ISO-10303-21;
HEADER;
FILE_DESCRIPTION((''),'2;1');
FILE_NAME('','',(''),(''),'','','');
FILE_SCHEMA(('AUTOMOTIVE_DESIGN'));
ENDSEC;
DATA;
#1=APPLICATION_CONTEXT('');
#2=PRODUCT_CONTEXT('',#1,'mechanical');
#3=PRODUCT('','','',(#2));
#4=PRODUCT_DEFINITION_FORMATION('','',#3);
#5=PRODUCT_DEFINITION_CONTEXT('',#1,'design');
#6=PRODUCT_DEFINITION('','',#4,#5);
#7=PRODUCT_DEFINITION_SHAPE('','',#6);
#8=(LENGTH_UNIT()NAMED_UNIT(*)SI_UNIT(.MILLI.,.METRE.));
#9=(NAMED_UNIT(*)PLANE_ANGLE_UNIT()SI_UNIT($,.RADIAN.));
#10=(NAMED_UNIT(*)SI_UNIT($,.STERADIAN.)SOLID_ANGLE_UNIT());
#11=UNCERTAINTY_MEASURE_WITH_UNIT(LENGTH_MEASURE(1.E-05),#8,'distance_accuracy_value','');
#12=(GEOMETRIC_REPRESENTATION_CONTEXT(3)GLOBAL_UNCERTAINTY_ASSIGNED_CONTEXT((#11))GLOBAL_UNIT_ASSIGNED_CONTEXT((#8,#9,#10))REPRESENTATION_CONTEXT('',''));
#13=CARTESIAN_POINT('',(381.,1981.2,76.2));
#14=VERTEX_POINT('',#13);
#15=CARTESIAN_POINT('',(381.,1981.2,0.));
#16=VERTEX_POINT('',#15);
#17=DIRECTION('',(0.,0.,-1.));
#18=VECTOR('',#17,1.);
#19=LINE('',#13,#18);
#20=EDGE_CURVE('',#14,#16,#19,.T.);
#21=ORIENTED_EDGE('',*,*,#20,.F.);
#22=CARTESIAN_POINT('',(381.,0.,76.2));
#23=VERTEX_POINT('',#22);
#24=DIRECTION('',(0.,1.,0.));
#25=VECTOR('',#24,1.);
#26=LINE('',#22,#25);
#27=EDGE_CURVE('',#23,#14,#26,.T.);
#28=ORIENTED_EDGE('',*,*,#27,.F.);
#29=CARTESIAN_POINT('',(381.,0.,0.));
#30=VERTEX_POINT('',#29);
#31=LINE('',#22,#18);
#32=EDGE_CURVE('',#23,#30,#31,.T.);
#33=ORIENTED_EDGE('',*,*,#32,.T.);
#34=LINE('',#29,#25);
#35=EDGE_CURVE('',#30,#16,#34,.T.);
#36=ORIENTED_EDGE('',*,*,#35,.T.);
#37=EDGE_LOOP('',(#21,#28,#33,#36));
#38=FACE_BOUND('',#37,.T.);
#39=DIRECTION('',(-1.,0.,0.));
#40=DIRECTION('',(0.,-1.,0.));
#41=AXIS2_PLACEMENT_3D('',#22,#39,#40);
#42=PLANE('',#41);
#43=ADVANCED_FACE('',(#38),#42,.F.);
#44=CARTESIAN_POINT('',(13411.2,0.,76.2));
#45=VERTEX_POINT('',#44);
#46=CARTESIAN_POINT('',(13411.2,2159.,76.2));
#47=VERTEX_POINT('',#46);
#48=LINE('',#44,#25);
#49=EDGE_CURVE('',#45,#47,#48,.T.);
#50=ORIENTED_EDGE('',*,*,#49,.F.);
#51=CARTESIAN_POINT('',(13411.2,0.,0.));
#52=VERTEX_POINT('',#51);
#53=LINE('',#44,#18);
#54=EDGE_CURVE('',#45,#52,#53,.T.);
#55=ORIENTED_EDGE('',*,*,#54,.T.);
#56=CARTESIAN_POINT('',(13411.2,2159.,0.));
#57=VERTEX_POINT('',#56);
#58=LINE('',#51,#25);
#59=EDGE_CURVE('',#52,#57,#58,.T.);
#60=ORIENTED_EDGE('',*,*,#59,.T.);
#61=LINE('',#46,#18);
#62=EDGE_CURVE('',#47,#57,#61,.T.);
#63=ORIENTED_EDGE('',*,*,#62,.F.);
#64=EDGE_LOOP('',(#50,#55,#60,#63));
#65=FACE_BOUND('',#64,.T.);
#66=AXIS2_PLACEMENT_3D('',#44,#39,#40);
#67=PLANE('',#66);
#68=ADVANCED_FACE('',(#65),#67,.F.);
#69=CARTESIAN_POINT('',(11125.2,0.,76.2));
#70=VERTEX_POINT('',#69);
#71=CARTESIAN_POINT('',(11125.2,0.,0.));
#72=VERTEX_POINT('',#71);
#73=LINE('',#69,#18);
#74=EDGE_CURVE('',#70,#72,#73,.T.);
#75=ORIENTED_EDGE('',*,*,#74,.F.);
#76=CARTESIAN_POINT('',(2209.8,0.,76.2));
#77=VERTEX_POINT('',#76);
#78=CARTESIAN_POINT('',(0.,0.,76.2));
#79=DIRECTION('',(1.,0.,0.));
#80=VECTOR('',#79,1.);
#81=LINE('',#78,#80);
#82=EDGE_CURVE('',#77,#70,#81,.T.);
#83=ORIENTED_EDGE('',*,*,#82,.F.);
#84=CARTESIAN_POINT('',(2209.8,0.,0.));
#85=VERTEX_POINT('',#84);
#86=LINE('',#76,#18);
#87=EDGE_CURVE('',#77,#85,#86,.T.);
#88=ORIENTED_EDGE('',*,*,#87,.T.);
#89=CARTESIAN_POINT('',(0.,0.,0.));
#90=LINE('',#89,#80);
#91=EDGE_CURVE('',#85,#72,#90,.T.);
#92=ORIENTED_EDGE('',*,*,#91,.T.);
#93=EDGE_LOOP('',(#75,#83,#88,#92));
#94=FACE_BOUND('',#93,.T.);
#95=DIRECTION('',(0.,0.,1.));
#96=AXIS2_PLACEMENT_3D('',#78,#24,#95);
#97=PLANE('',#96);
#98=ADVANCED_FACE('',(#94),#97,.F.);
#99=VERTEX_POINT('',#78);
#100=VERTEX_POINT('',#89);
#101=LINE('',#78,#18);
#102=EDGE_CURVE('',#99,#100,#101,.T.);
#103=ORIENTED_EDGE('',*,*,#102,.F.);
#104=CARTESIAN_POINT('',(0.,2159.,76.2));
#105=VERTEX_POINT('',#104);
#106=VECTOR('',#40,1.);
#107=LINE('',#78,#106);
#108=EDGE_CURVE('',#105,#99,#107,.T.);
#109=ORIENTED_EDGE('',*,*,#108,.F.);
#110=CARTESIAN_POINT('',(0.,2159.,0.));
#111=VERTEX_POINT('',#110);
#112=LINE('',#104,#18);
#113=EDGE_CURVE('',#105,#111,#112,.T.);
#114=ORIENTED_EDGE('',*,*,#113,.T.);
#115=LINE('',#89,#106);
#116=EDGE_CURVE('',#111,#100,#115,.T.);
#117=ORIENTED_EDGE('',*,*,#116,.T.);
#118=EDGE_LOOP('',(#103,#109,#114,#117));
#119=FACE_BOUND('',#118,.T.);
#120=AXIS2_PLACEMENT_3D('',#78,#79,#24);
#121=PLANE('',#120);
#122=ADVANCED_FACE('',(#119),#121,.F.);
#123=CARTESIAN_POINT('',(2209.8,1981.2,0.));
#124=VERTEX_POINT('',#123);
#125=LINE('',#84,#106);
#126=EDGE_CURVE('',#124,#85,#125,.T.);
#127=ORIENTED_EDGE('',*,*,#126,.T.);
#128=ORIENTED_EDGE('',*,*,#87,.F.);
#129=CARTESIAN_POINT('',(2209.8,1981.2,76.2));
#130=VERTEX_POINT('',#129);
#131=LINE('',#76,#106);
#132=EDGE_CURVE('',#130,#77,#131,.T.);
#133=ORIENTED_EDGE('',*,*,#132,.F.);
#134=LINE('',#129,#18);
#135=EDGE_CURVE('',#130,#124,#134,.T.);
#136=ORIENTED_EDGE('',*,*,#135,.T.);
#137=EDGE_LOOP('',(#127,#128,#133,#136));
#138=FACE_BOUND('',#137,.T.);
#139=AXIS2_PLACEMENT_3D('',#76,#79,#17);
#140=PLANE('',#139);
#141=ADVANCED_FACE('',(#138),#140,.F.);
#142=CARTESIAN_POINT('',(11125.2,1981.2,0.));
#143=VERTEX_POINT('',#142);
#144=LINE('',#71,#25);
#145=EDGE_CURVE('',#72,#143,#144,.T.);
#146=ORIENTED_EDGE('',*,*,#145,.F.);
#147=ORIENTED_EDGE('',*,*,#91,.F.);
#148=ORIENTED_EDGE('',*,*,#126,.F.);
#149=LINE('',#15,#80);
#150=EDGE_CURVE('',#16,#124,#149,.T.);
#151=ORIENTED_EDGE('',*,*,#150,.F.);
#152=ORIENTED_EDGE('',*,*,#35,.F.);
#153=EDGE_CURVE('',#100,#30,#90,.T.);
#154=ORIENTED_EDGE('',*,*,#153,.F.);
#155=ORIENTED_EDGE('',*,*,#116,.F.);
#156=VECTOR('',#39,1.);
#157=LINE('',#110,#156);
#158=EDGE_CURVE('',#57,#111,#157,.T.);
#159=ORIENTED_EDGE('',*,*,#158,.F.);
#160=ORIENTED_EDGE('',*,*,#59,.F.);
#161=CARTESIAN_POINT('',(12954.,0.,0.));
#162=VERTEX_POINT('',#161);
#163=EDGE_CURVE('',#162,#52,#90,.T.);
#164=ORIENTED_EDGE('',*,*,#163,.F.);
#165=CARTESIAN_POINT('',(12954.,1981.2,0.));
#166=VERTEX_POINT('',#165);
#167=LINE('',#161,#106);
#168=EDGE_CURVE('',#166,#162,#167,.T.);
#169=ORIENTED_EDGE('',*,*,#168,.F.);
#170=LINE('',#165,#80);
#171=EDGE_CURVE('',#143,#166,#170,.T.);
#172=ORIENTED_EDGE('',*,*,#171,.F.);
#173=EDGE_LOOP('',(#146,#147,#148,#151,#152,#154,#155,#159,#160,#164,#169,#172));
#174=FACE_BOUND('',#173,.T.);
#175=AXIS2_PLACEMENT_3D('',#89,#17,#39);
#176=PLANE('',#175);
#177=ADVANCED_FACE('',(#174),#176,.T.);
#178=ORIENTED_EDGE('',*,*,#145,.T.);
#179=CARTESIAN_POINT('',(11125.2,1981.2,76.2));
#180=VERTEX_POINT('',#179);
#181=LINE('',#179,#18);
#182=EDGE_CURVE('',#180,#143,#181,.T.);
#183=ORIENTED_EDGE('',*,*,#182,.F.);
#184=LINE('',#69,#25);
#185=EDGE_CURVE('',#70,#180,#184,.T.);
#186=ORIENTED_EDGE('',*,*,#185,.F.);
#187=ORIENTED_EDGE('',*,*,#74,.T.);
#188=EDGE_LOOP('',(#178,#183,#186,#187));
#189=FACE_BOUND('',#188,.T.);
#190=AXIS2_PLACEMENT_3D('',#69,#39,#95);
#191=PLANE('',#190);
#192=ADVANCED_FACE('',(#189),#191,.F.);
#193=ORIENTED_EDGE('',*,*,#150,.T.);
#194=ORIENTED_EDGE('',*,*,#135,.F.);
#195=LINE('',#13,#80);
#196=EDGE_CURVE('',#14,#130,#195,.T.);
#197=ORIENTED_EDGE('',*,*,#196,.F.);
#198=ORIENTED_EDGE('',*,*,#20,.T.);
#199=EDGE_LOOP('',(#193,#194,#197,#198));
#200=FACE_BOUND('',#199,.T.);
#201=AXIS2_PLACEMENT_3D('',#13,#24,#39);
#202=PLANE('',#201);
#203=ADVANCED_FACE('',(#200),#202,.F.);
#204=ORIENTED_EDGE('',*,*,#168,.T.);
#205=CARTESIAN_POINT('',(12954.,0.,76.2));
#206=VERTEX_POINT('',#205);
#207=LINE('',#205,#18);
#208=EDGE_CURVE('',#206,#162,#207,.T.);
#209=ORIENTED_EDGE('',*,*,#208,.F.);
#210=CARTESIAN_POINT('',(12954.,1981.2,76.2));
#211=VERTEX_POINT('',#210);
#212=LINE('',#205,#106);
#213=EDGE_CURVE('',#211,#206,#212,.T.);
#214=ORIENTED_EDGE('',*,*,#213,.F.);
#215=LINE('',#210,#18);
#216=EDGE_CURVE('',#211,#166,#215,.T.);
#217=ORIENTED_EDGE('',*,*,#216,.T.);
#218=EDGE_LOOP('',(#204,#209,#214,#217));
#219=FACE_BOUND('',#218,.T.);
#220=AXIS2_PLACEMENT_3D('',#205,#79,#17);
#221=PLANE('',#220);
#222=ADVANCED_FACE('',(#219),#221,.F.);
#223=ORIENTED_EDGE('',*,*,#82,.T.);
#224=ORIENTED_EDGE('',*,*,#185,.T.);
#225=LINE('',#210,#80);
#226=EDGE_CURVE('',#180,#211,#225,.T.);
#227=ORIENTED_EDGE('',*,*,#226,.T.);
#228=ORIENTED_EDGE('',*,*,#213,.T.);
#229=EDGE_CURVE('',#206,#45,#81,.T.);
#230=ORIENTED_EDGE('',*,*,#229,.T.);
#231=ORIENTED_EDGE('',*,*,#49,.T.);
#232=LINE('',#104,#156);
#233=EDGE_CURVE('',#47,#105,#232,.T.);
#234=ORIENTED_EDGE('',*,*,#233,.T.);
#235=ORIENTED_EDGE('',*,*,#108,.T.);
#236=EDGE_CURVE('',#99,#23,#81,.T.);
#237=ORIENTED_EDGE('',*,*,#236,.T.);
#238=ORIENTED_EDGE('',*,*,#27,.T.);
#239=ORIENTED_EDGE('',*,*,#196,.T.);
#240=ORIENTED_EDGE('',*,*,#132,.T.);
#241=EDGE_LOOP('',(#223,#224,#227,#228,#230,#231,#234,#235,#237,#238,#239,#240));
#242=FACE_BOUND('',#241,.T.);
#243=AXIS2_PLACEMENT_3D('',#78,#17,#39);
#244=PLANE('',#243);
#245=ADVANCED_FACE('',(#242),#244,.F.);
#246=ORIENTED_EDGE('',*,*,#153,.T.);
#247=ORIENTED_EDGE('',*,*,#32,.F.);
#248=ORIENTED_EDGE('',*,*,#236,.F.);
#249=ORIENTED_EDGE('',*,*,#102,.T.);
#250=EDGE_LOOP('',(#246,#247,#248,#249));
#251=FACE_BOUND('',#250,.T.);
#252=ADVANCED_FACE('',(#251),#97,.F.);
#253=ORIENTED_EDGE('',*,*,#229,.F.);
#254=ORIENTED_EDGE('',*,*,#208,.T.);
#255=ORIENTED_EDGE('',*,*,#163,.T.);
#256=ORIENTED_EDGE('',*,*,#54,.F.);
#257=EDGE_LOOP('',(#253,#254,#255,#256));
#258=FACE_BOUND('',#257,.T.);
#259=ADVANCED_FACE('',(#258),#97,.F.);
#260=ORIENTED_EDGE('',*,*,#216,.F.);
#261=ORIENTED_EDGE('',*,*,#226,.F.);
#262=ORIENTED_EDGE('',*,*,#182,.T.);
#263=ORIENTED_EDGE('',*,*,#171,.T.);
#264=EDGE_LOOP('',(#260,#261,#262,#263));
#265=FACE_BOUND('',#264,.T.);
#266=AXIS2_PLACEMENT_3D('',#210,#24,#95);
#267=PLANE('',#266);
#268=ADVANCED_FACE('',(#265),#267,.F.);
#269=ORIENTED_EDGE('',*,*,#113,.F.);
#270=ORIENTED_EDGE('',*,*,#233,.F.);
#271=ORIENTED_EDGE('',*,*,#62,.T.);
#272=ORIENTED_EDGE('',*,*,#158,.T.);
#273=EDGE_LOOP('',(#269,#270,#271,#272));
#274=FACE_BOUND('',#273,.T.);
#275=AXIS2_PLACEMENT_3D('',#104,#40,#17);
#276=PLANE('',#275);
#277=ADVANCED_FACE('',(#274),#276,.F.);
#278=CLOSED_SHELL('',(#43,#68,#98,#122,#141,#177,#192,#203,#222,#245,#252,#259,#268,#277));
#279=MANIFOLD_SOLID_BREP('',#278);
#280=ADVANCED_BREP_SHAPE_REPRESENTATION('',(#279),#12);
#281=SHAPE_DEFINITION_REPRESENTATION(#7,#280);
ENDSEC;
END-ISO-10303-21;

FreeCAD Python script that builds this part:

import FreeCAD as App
import Part
import Sketcher
from FreeCAD import Vector
Q = App.Units.Quantity


def add_polygon(sketch, points):
    """Adds a closed chain of lines whose ends are joined by coincident constraints."""
    first, n = sketch.GeometryCount, len(points)
    for a, b in zip(points, points[1:] + points[:1]):
        sketch.addGeometry(Part.LineSegment(App.Vector(*a, 0), App.Vector(*b, 0)), False)
    for i in range(n):
        sketch.addConstraint(Sketcher.Constraint("Coincident", first + i, 2, first + (i + 1) % n, 1))

doc = App.newDocument("Part")
body = doc.addObject("PartDesign::Body", "Body")

sketch1 = doc.addObject("Sketcher::SketchObject", "Sketch")
body.addObject(sketch1)
sketch1.AttachmentSupport = (doc.XY_Plane, [""])
sketch1.MapMode = "FlatFace"
add_polygon(sketch1, [(0, 2159), (0, 0), (13411.2, 0), (13411.2, 2159)])
sketch1.addConstraint([
    Sketcher.Constraint("Vertical", 0),
    Sketcher.Constraint("Horizontal", 1),
    Sketcher.Constraint("Vertical", 2),
    Sketcher.Constraint("Horizontal", 3),
    Sketcher.Constraint("Coincident", 0, 2, -1, 1),
    Sketcher.Constraint("DistanceX", 1, 1, 1, 2, Q("528 in")),
    Sketcher.Constraint("DistanceY", 0, 2, 0, 1, Q("85 in")),
])
pad1 = doc.addObject("PartDesign::Pad", "Pad")
body.addObject(pad1)
pad1.Profile = sketch1
pad1.Length = Q("3 in")

sketch2 = doc.addObject("Sketcher::SketchObject", "Sketch001")
body.addObject(sketch2)
sketch2.AttachmentSupport = (doc.XY_Plane, [""])
sketch2.MapMode = "FlatFace"
add_polygon(sketch2, [(12954, 1981.2), (12954, 0), (11125.2, 0), (11125.2, 1981.2)])
add_polygon(sketch2, [(2209.8, 1981.2), (2209.8, 0), (381, 0), (381, 1981.2)])
sketch2.addConstraint([
    Sketcher.Constraint("Vertical", 0),
    Sketcher.Constraint("Horizontal", 1),
    Sketcher.Constraint("Vertical", 2),
    Sketcher.Constraint("Horizontal", 3),
    Sketcher.Constraint("Vertical", 4),
    Sketcher.Constraint("Horizontal", 5),
    Sketcher.Constraint("Vertical", 6),
    Sketcher.Constraint("Horizontal", 7),
    Sketcher.Constraint("PointOnObject", 0, 2, -1),
    Sketcher.Constraint("PointOnObject", 4, 2, -1),
    Sketcher.Constraint("Horizontal", 3, 2, 6, 2),
    Sketcher.Constraint("Equal", 3, 5),
    Sketcher.Constraint("DistanceX", 1, 2, 1, 1, Q("72 in")),
    Sketcher.Constraint("DistanceY", 0, 2, 0, 1, Q("78 in")),
    Sketcher.Constraint("DistanceX", -1, 1, 0, 2, Q("510 in")),
    Sketcher.Constraint("DistanceX", -1, 1, 4, 2, Q("87 in")),
])
pocket1 = doc.addObject("PartDesign::Pocket", "Pocket")
body.addObject(pocket1)
pocket1.Profile = sketch2
pocket1.Type = "ThroughAll"
pocket1.Reversed = True

doc.recompute()
